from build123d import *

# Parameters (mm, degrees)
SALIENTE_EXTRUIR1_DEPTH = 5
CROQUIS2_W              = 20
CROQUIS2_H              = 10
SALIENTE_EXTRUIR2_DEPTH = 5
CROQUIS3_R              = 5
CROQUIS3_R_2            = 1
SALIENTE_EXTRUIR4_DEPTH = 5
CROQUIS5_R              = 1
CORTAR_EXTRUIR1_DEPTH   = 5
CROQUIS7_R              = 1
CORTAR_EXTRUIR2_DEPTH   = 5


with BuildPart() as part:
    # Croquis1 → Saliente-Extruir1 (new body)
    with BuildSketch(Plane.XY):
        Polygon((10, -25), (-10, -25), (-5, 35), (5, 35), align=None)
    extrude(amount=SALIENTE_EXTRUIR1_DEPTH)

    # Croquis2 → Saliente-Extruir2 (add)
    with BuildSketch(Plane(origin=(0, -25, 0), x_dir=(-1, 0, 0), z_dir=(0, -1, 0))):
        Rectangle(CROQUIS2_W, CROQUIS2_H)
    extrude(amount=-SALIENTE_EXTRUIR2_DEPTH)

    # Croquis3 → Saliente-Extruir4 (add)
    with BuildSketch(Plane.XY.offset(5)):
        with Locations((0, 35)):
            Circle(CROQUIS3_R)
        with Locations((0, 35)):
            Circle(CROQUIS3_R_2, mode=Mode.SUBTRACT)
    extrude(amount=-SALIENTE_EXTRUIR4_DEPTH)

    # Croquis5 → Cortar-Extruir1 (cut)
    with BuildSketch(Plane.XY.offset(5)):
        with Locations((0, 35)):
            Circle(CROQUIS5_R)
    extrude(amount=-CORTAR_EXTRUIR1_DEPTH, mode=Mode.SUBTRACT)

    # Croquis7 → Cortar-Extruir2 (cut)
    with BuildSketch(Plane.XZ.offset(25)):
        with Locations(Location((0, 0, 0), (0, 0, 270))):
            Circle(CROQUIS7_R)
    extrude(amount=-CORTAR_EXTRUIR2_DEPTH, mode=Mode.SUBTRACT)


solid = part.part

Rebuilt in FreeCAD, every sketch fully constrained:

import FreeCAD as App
import Part
import Sketcher

V = App.Vector
Q = App.Units.Quantity

doc = App.newDocument("Part")
params = doc.addObject("Spreadsheet::Sheet", "Params")
for row, (alias, value) in enumerate([
    ("sketch1_width", "20 mm"),
    ("sketch1_width2", "10 mm"),
    ("pad1_length", "5 mm"),
    ("sketch2_width", "20 mm"),
    ("sketch2_height", "10 mm"),
    ("pad2_length", "5 mm"),
    ("sketch3_diameter", "10 mm"),
    ("sketch3_diameter2", "2 mm"),
    ("pad3_length", "5 mm"),
    ("sketch4_diameter", "2 mm"),
    ("pocket1_length", "5 mm"),
    ("sketch5_diameter", "2 mm"),
    ("pocket2_length", "5 mm"),
], start=1):
    params.set(f"A{row}", alias)
    params.set(f"B{row}", "=" + value)
    params.setAlias(f"B{row}", alias)

body = doc.addObject("PartDesign::Body", "Body")

# Sketch on XY plane
sketch1 = body.newObject("Sketcher::SketchObject", "Sketch")
sketch1.AttachmentSupport = (doc.getObject("XY_Plane"), [""])
sketch1.MapMode = "FlatFace"
sketch1.addGeometry([
    Part.LineSegment(V(-10, -25, 0), V(10, -25, 0)),
    Part.LineSegment(V(10, -25, 0), V(5, 35, 0)),
    Part.LineSegment(V(5, 35, 0), V(-5, 35, 0)),
    Part.LineSegment(V(-5, 35, 0), V(-10, -25, 0)),
], False)
sketch1.addConstraint([
    Sketcher.Constraint("Coincident", 0, 2, 1, 1),
    Sketcher.Constraint("Coincident", 1, 2, 2, 1),
    Sketcher.Constraint("Coincident", 2, 2, 3, 1),
    Sketcher.Constraint("Coincident", 3, 2, 0, 1),
    Sketcher.Constraint("Horizontal", 0),
    Sketcher.Constraint("Horizontal", 2),
    Sketcher.Constraint("Equal", 1, 3),
    Sketcher.Constraint("DistanceX", 0, 1, 0, 2, Q("20 mm")),
    Sketcher.Constraint("DistanceX", 2, 2, 2, 1, Q("10 mm")),
    Sketcher.Constraint("DistanceX", -1, 1, 0, 2, Q("10 mm")),
    Sketcher.Constraint("DistanceY", 0, 2, -1, 1, Q("25 mm")),
    Sketcher.Constraint("DistanceY", -1, 1, 1, 2, Q("35 mm")),
])
sketch1.setExpression("Constraints[7]", "Params.sketch1_width")
sketch1.setExpression("Constraints[8]", "Params.sketch1_width2")
pad1 = body.newObject("PartDesign::Pad", "Pad")
pad1.Profile = sketch1
pad1.setExpression("Length", "Params.pad1_length")

# Sketch on XZ plane
sketch2 = body.newObject("Sketcher::SketchObject", "Sketch001")
sketch2.AttachmentSupport = (doc.getObject("XZ_Plane"), [""])
sketch2.MapMode = "FlatFace"
sketch2.AttachmentOffset = App.Placement(V(0, 0, 25), App.Rotation())
sketch2.addGeometry([
    Part.LineSegment(V(10, -5, 0), V(10, 5, 0)),
    Part.LineSegment(V(10, 5, 0), V(-10, 5, 0)),
    Part.LineSegment(V(-10, 5, 0), V(-10, -5, 0)),
    Part.LineSegment(V(-10, -5, 0), V(10, -5, 0)),
], False)
sketch2.addConstraint([
    Sketcher.Constraint("Coincident", 0, 2, 1, 1),
    Sketcher.Constraint("Coincident", 1, 2, 2, 1),
    Sketcher.Constraint("Coincident", 2, 2, 3, 1),
    Sketcher.Constraint("Coincident", 3, 2, 0, 1),
    Sketcher.Constraint("Vertical", 0),
    Sketcher.Constraint("Horizontal", 1),
    Sketcher.Constraint("Vertical", 2),
    Sketcher.Constraint("Horizontal", 3),
    Sketcher.Constraint("Symmetric", 0, 2, 2, 2, -1, 1),
    Sketcher.Constraint("DistanceX", 1, 2, 1, 1, Q("20 mm")),
    Sketcher.Constraint("DistanceY", 0, 1, 0, 2, Q("10 mm")),
])
sketch2.setExpression("Constraints[9]", "Params.sketch2_width")
sketch2.setExpression("Constraints[10]", "Params.sketch2_height")
pad2 = body.newObject("PartDesign::Pad", "Pad001")
pad2.Profile = sketch2
pad2.setExpression("Length", "Params.pad2_length")
pad2.Reversed = True

# Sketch on XY plane
sketch3 = body.newObject("Sketcher::SketchObject", "Sketch002")
sketch3.AttachmentSupport = (doc.getObject("XY_Plane"), [""])
sketch3.MapMode = "FlatFace"
sketch3.AttachmentOffset = App.Placement(V(0, 0, 5), App.Rotation())
sketch3.addGeometry([
    Part.Circle(V(0, 35, 0), V(0, 0, 1), 5),
    Part.Circle(V(0, 35, 0), V(0, 0, 1), 1),
], False)
sketch3.addConstraint([
    Sketcher.Constraint("Coincident", 1, 3, 0, 3),
    Sketcher.Constraint("PointOnObject", 0, 3, -2),
    Sketcher.Constraint("Diameter", 0, Q("10 mm")),
    Sketcher.Constraint("Diameter", 1, Q("2 mm")),
    Sketcher.Constraint("DistanceY", -1, 1, 0, 3, Q("35 mm")),
])
sketch3.setExpression("Constraints[2]", "Params.sketch3_diameter")
sketch3.setExpression("Constraints[3]", "Params.sketch3_diameter2")
pad3 = body.newObject("PartDesign::Pad", "Pad002")
pad3.Profile = sketch3
pad3.setExpression("Length", "Params.pad3_length")
pad3.Reversed = True

# Sketch on XY plane
sketch4 = body.newObject("Sketcher::SketchObject", "Sketch003")
sketch4.AttachmentSupport = (doc.getObject("XY_Plane"), [""])
sketch4.MapMode = "FlatFace"
sketch4.AttachmentOffset = App.Placement(V(0, 0, 5), App.Rotation())
sketch4.addGeometry(Part.Circle(V(0, 35, 0), V(0, 0, 1), 1), False)
sketch4.addConstraint([
    Sketcher.Constraint("PointOnObject", 0, 3, -2),
    Sketcher.Constraint("Diameter", 0, Q("2 mm")),
    Sketcher.Constraint("DistanceY", -1, 1, 0, 3, Q("35 mm")),
])
sketch4.setExpression("Constraints[1]", "Params.sketch4_diameter")
pocket1 = body.newObject("PartDesign::Pocket", "Pocket")
pocket1.Profile = sketch4
pocket1.setExpression("Length", "Params.pocket1_length")

# Sketch on XZ plane
sketch5 = body.newObject("Sketcher::SketchObject", "Sketch004")
sketch5.AttachmentSupport = (doc.getObject("XZ_Plane"), [""])
sketch5.MapMode = "FlatFace"
sketch5.AttachmentOffset = App.Placement(V(0, 0, 25), App.Rotation())
sketch5.addGeometry(Part.Circle(V(0, 0, 0), V(0, 0, 1), 1), False)
sketch5.addConstraint([
    Sketcher.Constraint("Coincident", 0, 3, -1, 1),
    Sketcher.Constraint("Diameter", 0, Q("2 mm")),
])
sketch5.setExpression("Constraints[1]", "Params.sketch5_diameter")
pocket2 = body.newObject("PartDesign::Pocket", "Pocket001")
pocket2.Profile = sketch5
pocket2.setExpression("Length", "Params.pocket2_length")

doc.recompute()
